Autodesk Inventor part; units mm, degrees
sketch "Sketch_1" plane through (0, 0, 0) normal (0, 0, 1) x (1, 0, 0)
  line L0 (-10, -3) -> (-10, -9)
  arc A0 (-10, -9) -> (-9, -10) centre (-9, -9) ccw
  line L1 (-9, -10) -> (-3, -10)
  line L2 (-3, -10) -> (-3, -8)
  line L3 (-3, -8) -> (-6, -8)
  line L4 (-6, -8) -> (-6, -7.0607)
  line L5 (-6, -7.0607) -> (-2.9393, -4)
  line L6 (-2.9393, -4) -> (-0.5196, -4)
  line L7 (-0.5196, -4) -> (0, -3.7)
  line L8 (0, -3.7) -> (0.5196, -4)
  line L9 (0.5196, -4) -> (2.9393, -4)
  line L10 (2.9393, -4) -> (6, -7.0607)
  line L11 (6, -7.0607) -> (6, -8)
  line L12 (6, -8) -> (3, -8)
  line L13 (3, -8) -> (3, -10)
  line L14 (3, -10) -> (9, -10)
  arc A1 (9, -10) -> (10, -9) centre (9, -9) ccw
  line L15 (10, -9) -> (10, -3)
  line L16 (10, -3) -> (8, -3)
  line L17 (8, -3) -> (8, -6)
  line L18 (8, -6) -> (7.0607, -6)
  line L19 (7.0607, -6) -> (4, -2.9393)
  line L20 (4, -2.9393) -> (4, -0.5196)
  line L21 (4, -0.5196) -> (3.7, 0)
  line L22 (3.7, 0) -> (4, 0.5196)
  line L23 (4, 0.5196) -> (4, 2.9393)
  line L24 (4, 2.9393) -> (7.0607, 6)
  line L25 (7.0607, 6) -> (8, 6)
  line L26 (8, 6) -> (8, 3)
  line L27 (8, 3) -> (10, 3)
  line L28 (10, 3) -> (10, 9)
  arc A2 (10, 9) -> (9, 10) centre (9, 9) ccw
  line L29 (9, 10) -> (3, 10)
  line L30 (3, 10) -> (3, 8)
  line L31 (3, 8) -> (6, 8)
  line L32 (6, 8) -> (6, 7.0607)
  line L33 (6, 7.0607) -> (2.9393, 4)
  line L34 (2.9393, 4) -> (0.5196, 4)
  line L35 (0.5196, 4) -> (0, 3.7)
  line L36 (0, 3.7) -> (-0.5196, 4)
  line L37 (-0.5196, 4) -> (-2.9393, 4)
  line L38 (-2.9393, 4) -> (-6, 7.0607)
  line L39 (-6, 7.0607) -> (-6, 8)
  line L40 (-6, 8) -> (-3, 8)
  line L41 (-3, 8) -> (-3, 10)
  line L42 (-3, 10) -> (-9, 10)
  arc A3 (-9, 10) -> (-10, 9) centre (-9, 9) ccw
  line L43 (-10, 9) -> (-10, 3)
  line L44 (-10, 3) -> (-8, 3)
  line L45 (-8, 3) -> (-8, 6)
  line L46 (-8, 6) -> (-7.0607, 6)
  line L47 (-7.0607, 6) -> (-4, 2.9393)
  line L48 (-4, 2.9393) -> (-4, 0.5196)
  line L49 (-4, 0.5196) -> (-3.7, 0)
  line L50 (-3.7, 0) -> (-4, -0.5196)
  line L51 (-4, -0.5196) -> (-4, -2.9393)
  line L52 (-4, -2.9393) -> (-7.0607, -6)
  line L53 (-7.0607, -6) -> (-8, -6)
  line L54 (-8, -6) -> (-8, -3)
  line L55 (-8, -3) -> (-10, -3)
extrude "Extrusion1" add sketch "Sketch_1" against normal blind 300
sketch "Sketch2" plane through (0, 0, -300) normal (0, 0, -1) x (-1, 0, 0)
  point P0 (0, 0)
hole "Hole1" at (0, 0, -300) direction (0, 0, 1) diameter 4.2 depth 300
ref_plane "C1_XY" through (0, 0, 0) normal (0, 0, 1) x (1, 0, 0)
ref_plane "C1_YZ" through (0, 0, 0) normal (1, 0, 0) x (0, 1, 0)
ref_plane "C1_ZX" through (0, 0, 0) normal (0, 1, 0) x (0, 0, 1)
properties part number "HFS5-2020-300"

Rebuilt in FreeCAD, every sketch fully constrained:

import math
import FreeCAD as App
import Part
import Sketcher
Q = App.Units.Quantity

doc = App.newDocument("Part")
params = doc.addObject("Spreadsheet::Sheet", "Params")
for row, (alias, value) in enumerate([
    ("sketch1_radius", "1 mm"),
    ("sketch1_width", "2 mm"),
    ("sketch1_width2", "6 mm"),
    ("sketch1_width3", "3 mm"),
    ("sketch1_length", "0.6 mm"),
    ("pad1_length", "300 mm"),
    ("sketch2_diameter", "4.2 mm"),
    ("hole_diameter", "4.2 mm"),
    ("hole_depth", "300 mm"),
], start=1):
    params.set(f"A{row}", alias)
    params.set(f"B{row}", "=" + value)
    params.setAlias(f"B{row}", alias)

body = doc.addObject("PartDesign::Body", "Body")

sketch1 = doc.addObject("Sketcher::SketchObject", "Sketch")
body.addObject(sketch1)
sketch1.AttachmentSupport = (doc.XY_Plane, [""])
sketch1.MapMode = "FlatFace"
sketch1.addGeometry([
    Part.LineSegment(App.Vector(-8, -3, 0), App.Vector(-10, -3, 0)),
    Part.LineSegment(App.Vector(-10, -3, 0), App.Vector(-10, -9, 0)),
    Part.ArcOfCircle(Part.Circle(App.Vector(-9, -9, 0), App.Vector(0, 0, 1), 1), math.radians(180), math.radians(270)),
    Part.LineSegment(App.Vector(-9, -10, 0), App.Vector(-3, -10, 0)),
    Part.LineSegment(App.Vector(-3, -10, 0), App.Vector(-3, -8, 0)),
    Part.LineSegment(App.Vector(-3, -8, 0), App.Vector(-6, -8, 0)),
    Part.LineSegment(App.Vector(-6, -8, 0), App.Vector(-6, -7.0607, 0)),
    Part.LineSegment(App.Vector(-6, -7.0607, 0), App.Vector(-2.9393, -4, 0)),
    Part.LineSegment(App.Vector(-2.9393, -4, 0), App.Vector(-0.5196, -4, 0)),
    Part.LineSegment(App.Vector(-0.5196, -4, 0), App.Vector(0, -3.7, 0)),
    Part.LineSegment(App.Vector(0, -3.7, 0), App.Vector(0.5196, -4, 0)),
    Part.LineSegment(App.Vector(0.5196, -4, 0), App.Vector(2.9393, -4, 0)),
    Part.LineSegment(App.Vector(2.9393, -4, 0), App.Vector(6, -7.0607, 0)),
    Part.LineSegment(App.Vector(6, -7.0607, 0), App.Vector(6, -8, 0)),
    Part.LineSegment(App.Vector(6, -8, 0), App.Vector(3, -8, 0)),
    Part.LineSegment(App.Vector(3, -8, 0), App.Vector(3, -10, 0)),
    Part.LineSegment(App.Vector(3, -10, 0), App.Vector(9, -10, 0)),
    Part.ArcOfCircle(Part.Circle(App.Vector(9, -9, 0), App.Vector(0, 0, 1), 1), math.radians(-90), math.radians(0)),
    Part.LineSegment(App.Vector(10, -9, 0), App.Vector(10, -3, 0)),
    Part.LineSegment(App.Vector(10, -3, 0), App.Vector(8, -3, 0)),
    Part.LineSegment(App.Vector(8, -3, 0), App.Vector(8, -6, 0)),
    Part.LineSegment(App.Vector(8, -6, 0), App.Vector(7.0607, -6, 0)),
    Part.LineSegment(App.Vector(7.0607, -6, 0), App.Vector(4, -2.9393, 0)),
    Part.LineSegment(App.Vector(4, -2.9393, 0), App.Vector(4, -0.5196, 0)),
    Part.LineSegment(App.Vector(4, -0.5196, 0), App.Vector(3.7, 0, 0)),
    Part.LineSegment(App.Vector(3.7, 0, 0), App.Vector(4, 0.5196, 0)),
    Part.LineSegment(App.Vector(4, 0.5196, 0), App.Vector(4, 2.9393, 0)),
    Part.LineSegment(App.Vector(4, 2.9393, 0), App.Vector(7.0607, 6, 0)),
    Part.LineSegment(App.Vector(7.0607, 6, 0), App.Vector(8, 6, 0)),
    Part.LineSegment(App.Vector(8, 6, 0), App.Vector(8, 3, 0)),
    Part.LineSegment(App.Vector(8, 3, 0), App.Vector(10, 3, 0)),
    Part.LineSegment(App.Vector(10, 3, 0), App.Vector(10, 9, 0)),
    Part.ArcOfCircle(Part.Circle(App.Vector(9, 9, 0), App.Vector(0, 0, 1), 1), math.radians(0), math.radians(90)),
    Part.LineSegment(App.Vector(9, 10, 0), App.Vector(3, 10, 0)),
    Part.LineSegment(App.Vector(3, 10, 0), App.Vector(3, 8, 0)),
    Part.LineSegment(App.Vector(3, 8, 0), App.Vector(6, 8, 0)),
    Part.LineSegment(App.Vector(6, 8, 0), App.Vector(6, 7.0607, 0)),
    Part.LineSegment(App.Vector(6, 7.0607, 0), App.Vector(2.9393, 4, 0)),
    Part.LineSegment(App.Vector(2.9393, 4, 0), App.Vector(0.5196, 4, 0)),
    Part.LineSegment(App.Vector(0.5196, 4, 0), App.Vector(0, 3.7, 0)),
    Part.LineSegment(App.Vector(0, 3.7, 0), App.Vector(-0.5196, 4, 0)),
    Part.LineSegment(App.Vector(-0.5196, 4, 0), App.Vector(-2.9393, 4, 0)),
    Part.LineSegment(App.Vector(-2.9393, 4, 0), App.Vector(-6, 7.0607, 0)),
    Part.LineSegment(App.Vector(-6, 7.0607, 0), App.Vector(-6, 8, 0)),
    Part.LineSegment(App.Vector(-6, 8, 0), App.Vector(-3, 8, 0)),
    Part.LineSegment(App.Vector(-3, 8, 0), App.Vector(-3, 10, 0)),
    Part.LineSegment(App.Vector(-3, 10, 0), App.Vector(-9, 10, 0)),
    Part.ArcOfCircle(Part.Circle(App.Vector(-9, 9, 0), App.Vector(0, 0, 1), 1), math.radians(90), math.radians(180)),
    Part.LineSegment(App.Vector(-10, 9, 0), App.Vector(-10, 3, 0)),
    Part.LineSegment(App.Vector(-10, 3, 0), App.Vector(-8, 3, 0)),
    Part.LineSegment(App.Vector(-8, 3, 0), App.Vector(-8, 6, 0)),
    Part.LineSegment(App.Vector(-8, 6, 0), App.Vector(-7.0607, 6, 0)),
    Part.LineSegment(App.Vector(-7.0607, 6, 0), App.Vector(-4, 2.9393, 0)),
    Part.LineSegment(App.Vector(-4, 2.9393, 0), App.Vector(-4, 0.5196, 0)),
    Part.LineSegment(App.Vector(-4, 0.5196, 0), App.Vector(-3.7, 0, 0)),
    Part.LineSegment(App.Vector(-3.7, 0, 0), App.Vector(-4, -0.5196, 0)),
    Part.LineSegment(App.Vector(-4, -0.5196, 0), App.Vector(-4, -2.9393, 0)),
    Part.LineSegment(App.Vector(-4, -2.9393, 0), App.Vector(-7.0607, -6, 0)),
    Part.LineSegment(App.Vector(-7.0607, -6, 0), App.Vector(-8, -6, 0)),
    Part.LineSegment(App.Vector(-8, -6, 0), App.Vector(-8, -3, 0)),
], False)
sketch1.addConstraint([
    Sketcher.Constraint("Coincident", 0, 2, 1, 1),
    Sketcher.Constraint("Tangent", 1, 2, 2, 1),
    Sketcher.Constraint("Tangent", 2, 2, 3, 1),
    Sketcher.Constraint("Coincident", 3, 2, 4, 1),
    Sketcher.Constraint("Coincident", 4, 2, 5, 1),
    Sketcher.Constraint("Coincident", 5, 2, 6, 1),
    Sketcher.Constraint("Coincident", 6, 2, 7, 1),
    Sketcher.Constraint("Coincident", 7, 2, 8, 1),
    Sketcher.Constraint("Coincident", 8, 2, 9, 1),
    Sketcher.Constraint("Coincident", 9, 2, 10, 1),
    Sketcher.Constraint("Coincident", 10, 2, 11, 1),
    Sketcher.Constraint("Coincident", 11, 2, 12, 1),
    Sketcher.Constraint("Coincident", 12, 2, 13, 1),
    Sketcher.Constraint("Coincident", 13, 2, 14, 1),
    Sketcher.Constraint("Coincident", 14, 2, 15, 1),
    Sketcher.Constraint("Coincident", 15, 2, 16, 1),
    Sketcher.Constraint("Tangent", 16, 2, 17, 1),
    Sketcher.Constraint("Tangent", 17, 2, 18, 1),
    Sketcher.Constraint("Coincident", 18, 2, 19, 1),
    Sketcher.Constraint("Coincident", 19, 2, 20, 1),
    Sketcher.Constraint("Coincident", 20, 2, 21, 1),
    Sketcher.Constraint("Coincident", 21, 2, 22, 1),
    Sketcher.Constraint("Coincident", 22, 2, 23, 1),
    Sketcher.Constraint("Coincident", 23, 2, 24, 1),
    Sketcher.Constraint("Coincident", 24, 2, 25, 1),
    Sketcher.Constraint("Coincident", 25, 2, 26, 1),
    Sketcher.Constraint("Coincident", 26, 2, 27, 1),
    Sketcher.Constraint("Coincident", 27, 2, 28, 1),
    Sketcher.Constraint("Coincident", 28, 2, 29, 1),
    Sketcher.Constraint("Coincident", 29, 2, 30, 1),
    Sketcher.Constraint("Coincident", 30, 2, 31, 1),
    Sketcher.Constraint("Tangent", 31, 2, 32, 1),
    Sketcher.Constraint("Tangent", 32, 2, 33, 1),
    Sketcher.Constraint("Coincident", 33, 2, 34, 1),
    Sketcher.Constraint("Coincident", 34, 2, 35, 1),
    Sketcher.Constraint("Coincident", 35, 2, 36, 1),
    Sketcher.Constraint("Coincident", 36, 2, 37, 1),
    Sketcher.Constraint("Coincident", 37, 2, 38, 1),
    Sketcher.Constraint("Coincident", 38, 2, 39, 1),
    Sketcher.Constraint("Coincident", 39, 2, 40, 1),
    Sketcher.Constraint("Coincident", 40, 2, 41, 1),
    Sketcher.Constraint("Coincident", 41, 2, 42, 1),
    Sketcher.Constraint("Coincident", 42, 2, 43, 1),
    Sketcher.Constraint("Coincident", 43, 2, 44, 1),
    Sketcher.Constraint("Coincident", 44, 2, 45, 1),
    Sketcher.Constraint("Coincident", 45, 2, 46, 1),
    Sketcher.Constraint("Tangent", 46, 2, 47, 1),
    Sketcher.Constraint("Tangent", 47, 2, 48, 1),
    Sketcher.Constraint("Coincident", 48, 2, 49, 1),
    Sketcher.Constraint("Coincident", 49, 2, 50, 1),
    Sketcher.Constraint("Coincident", 50, 2, 51, 1),
    Sketcher.Constraint("Coincident", 51, 2, 52, 1),
    Sketcher.Constraint("Coincident", 52, 2, 53, 1),
    Sketcher.Constraint("Coincident", 53, 2, 54, 1),
    Sketcher.Constraint("Coincident", 54, 2, 55, 1),
    Sketcher.Constraint("Coincident", 55, 2, 56, 1),
    Sketcher.Constraint("Coincident", 56, 2, 57, 1),
    Sketcher.Constraint("Coincident", 57, 2, 58, 1),
    Sketcher.Constraint("Coincident", 58, 2, 59, 1),
    Sketcher.Constraint("Coincident", 59, 2, 0, 1),
    Sketcher.Constraint("Horizontal", 0),
    Sketcher.Constraint("Vertical", 1),
    Sketcher.Constraint("Horizontal", 3),
    Sketcher.Constraint("Vertical", 4),
    Sketcher.Constraint("Horizontal", 5),
    Sketcher.Constraint("Vertical", 6),
    Sketcher.Constraint("Horizontal", 8),
    Sketcher.Constraint("Horizontal", 11),
    Sketcher.Constraint("Vertical", 13),
    Sketcher.Constraint("Horizontal", 14),
    Sketcher.Constraint("Vertical", 15),
    Sketcher.Constraint("Horizontal", 16),
    Sketcher.Constraint("Vertical", 18),
    Sketcher.Constraint("Horizontal", 19),
    Sketcher.Constraint("Vertical", 20),
    Sketcher.Constraint("Horizontal", 21),
    Sketcher.Constraint("Vertical", 23),
    Sketcher.Constraint("Vertical", 26),
    Sketcher.Constraint("Horizontal", 28),
    Sketcher.Constraint("Vertical", 29),
    Sketcher.Constraint("Horizontal", 30),
    Sketcher.Constraint("Vertical", 31),
    Sketcher.Constraint("Horizontal", 33),
    Sketcher.Constraint("Vertical", 34),
    Sketcher.Constraint("Horizontal", 35),
    Sketcher.Constraint("Vertical", 36),
    Sketcher.Constraint("Horizontal", 38),
    Sketcher.Constraint("Horizontal", 41),
    Sketcher.Constraint("Vertical", 43),
    Sketcher.Constraint("Horizontal", 44),
    Sketcher.Constraint("Vertical", 45),
    Sketcher.Constraint("Horizontal", 46),
    Sketcher.Constraint("Vertical", 48),
    Sketcher.Constraint("Horizontal", 49),
    Sketcher.Constraint("Vertical", 50),
    Sketcher.Constraint("Horizontal", 51),
    Sketcher.Constraint("Vertical", 53),
    Sketcher.Constraint("Vertical", 56),
    Sketcher.Constraint("Horizontal", 58),
    Sketcher.Constraint("Vertical", 59),
    Sketcher.Constraint("Equal", 2, 17),
    Sketcher.Constraint("Equal", 17, 32),
    Sketcher.Constraint("Equal", 32, 47),
    Sketcher.Constraint("Symmetric", 2, 3, 32, 3, -1, 1),
    Sketcher.Constraint("Symmetric", 17, 3, 47, 3, -1, 1),
    Sketcher.Constraint("Symmetric", 4, 2, 34, 2, -1, 1),
    Sketcher.Constraint("Symmetric", 6, 2, 36, 2, -1, 1),
    Sketcher.Constraint("Symmetric", 7, 2, 37, 2, -1, 1),
    Sketcher.Constraint("Symmetric", 9, 2, 39, 2, -1, 1),
    Sketcher.Constraint("Symmetric", 10, 2, 40, 2, -1, 1),
    Sketcher.Constraint("Symmetric", 12, 2, 42, 2, -1, 1),
    Sketcher.Constraint("Symmetric", 14, 2, 44, 2, -1, 1),
    Sketcher.Constraint("Symmetric", 19, 2, 49, 2, -1, 1),
    Sketcher.Constraint("Symmetric", 21, 2, 51, 2, -1, 1),
    Sketcher.Constraint("Symmetric", 22, 2, 52, 2, -1, 1),
    Sketcher.Constraint("Symmetric", 24, 2, 54, 2, -1, 1),
    Sketcher.Constraint("Symmetric", 25, 2, 55, 2, -1, 1),
    Sketcher.Constraint("Symmetric", 27, 2, 57, 2, -1, 1),
    Sketcher.Constraint("Symmetric", 29, 2, 59, 2, -1, 1),
    Sketcher.Constraint("Symmetric", 2, 3, 17, 3, -2),
    Sketcher.Constraint("Symmetric", 8, 2, 10, 2, -2),
    Sketcher.Constraint("Symmetric", 6, 2, 12, 2, -2),
    Sketcher.Constraint("Symmetric", 4, 2, 14, 2, -2),
    Sketcher.Constraint("Symmetric", 29, 2, 49, 2, -2),
    Sketcher.Constraint("Symmetric", 27, 2, 51, 2, -2),
    Sketcher.Constraint("Symmetric", 26, 2, 52, 2, -2),
    Sketcher.Constraint("PointOnObject", 9, 2, -2),
    Sketcher.Constraint("PointOnObject", 24, 2, -1),
    Sketcher.Constraint("Perpendicular", 7, 12),
    Sketcher.Constraint("Parallel", 12, 22),
    Sketcher.Constraint("Perpendicular", 9, 24),
    Sketcher.Constraint("Perpendicular", 10, 25),
    Sketcher.Constraint("Perpendicular", 22, 27),
    Sketcher.Constraint("Perpendicular", 24, 39),
    Sketcher.Constraint("Perpendicular", 37, 42),
    Sketcher.Constraint("Perpendicular", 39, 54),
    Sketcher.Constraint("Perpendicular", 52, 57),
    Sketcher.Constraint("Equal", 46, 1),
    Sketcher.Constraint("Equal", 49, 4),
    Sketcher.Constraint("Equal", 58, 6),
    Sketcher.Constraint("Equal", 44, 20),
    Sketcher.Constraint("Equal", 41, 23),
    Sketcher.Constraint("Equal", 12, 22),
    Sketcher.Constraint("Equal", 10, 24),
    Sketcher.Constraint("Radius", 2, Q("1 mm")),
    Sketcher.Constraint("DistanceX", 0, 2, 0, 1, Q("2 mm")),
    Sketcher.Constraint("DistanceX", 3, 1, 3, 2, Q("6 mm")),
    Sketcher.Constraint("DistanceX", 5, 2, 5, 1, Q("3 mm")),
    Sketcher.Constraint("Angle", 9, Q("30.0007 deg")),
    Sketcher.Constraint("DistanceX", 2, 3, -1, 1, Q("9 mm")),
    Sketcher.Constraint("DistanceY", 7, 2, -1, 1, Q("4 mm")),
    Sketcher.Constraint("Distance", 9, Q("0.6 mm")),
    Sketcher.Constraint("DistanceX", 8, 1, 8, 2, Q("2.4197 mm")),
])
sketch1.setExpression("Constraints[144]", "Params.sketch1_radius")
sketch1.setExpression("Constraints[145]", "Params.sketch1_width")
sketch1.setExpression("Constraints[146]", "Params.sketch1_width2")
sketch1.setExpression("Constraints[147]", "Params.sketch1_width3")
sketch1.setExpression("Constraints[151]", "Params.sketch1_length")
pad1 = doc.addObject("PartDesign::Pad", "Pad")
body.addObject(pad1)
pad1.Profile = sketch1
pad1.setExpression("Length", "Params.pad1_length")
pad1.Reversed = True

sketch2 = doc.addObject("Sketcher::SketchObject", "Sketch001")
body.addObject(sketch2)
sketch2.AttachmentSupport = (doc.XY_Plane, [""])
sketch2.MapMode = "FlatFace"
sketch2.AttachmentOffset = App.Placement(App.Vector(0, 0, -300), App.Rotation())
sketch2.addGeometry(Part.Circle(App.Vector(0, 0, 0), App.Vector(0, 0, 1), 2.1), False)
sketch2.addConstraint([
    Sketcher.Constraint("Coincident", 0, 3, -1, 1),
    Sketcher.Constraint("Diameter", 0, Q("4.2 mm")),
])
sketch2.setExpression("Constraints[1]", "Params.sketch2_diameter")
doc.recompute()
hole = doc.addObject("PartDesign::Hole", "Hole")
body.addObject(hole)
hole.Profile = sketch2
hole.ThreadType = "None"
hole.setExpression("Diameter", "Params.hole_diameter")
hole.DepthType = "Dimension"
hole.setExpression("Depth", "Params.hole_depth")
hole.DrillPoint = "Flat"
hole.Reversed = True

doc.recompute()
